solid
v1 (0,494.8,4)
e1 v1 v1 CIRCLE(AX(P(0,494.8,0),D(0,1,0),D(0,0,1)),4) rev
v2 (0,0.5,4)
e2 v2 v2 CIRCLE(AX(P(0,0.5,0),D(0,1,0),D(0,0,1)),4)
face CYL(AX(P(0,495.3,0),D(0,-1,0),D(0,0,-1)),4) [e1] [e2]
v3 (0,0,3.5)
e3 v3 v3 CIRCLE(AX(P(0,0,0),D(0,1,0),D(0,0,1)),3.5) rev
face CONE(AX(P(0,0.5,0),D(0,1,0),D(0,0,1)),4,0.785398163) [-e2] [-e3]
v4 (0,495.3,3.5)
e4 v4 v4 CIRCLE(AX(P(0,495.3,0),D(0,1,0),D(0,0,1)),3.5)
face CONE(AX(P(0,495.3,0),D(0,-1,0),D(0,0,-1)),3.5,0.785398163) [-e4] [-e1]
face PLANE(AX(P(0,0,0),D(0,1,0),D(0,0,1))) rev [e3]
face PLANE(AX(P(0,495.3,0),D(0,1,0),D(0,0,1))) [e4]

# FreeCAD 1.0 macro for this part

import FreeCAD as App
import Part
import Sketcher
Q = App.Units.Quantity


def edges_at(feature, points):
    """Names of the edges that pass closest to the given points."""
    edges = feature.Shape.Edges
    near = lambda p: min(range(len(edges)), key=lambda i: edges[i].distToShape(Part.Vertex(*p))[0])
    return sorted({f"Edge{near(p) + 1}" for p in points})

doc = App.newDocument("Part")
body = doc.addObject("PartDesign::Body", "Body")

# Sketch on XZ plane
sketch1 = body.newObject("Sketcher::SketchObject", "Sketch")
sketch1.AttachmentSupport = (doc.getObject("XZ_Plane"), [""])
sketch1.MapMode = "FlatFace"
sketch1.addGeometry(Part.Circle(App.Vector(0, 0, 0), App.Vector(0, 0, 1), 4), False)
sketch1.addConstraint([
    Sketcher.Constraint("Coincident", 0, 3, -1, 1),
    Sketcher.Constraint("Diameter", 0, Q("8 mm")),
])
pad1 = body.newObject("PartDesign::Pad", "Pad")
pad1.Profile = sketch1
pad1.Length = 495.3
pad1.Reversed = True
doc.recompute()

chamfer = body.newObject("PartDesign::Chamfer", "Chamfer")
chamfer.Base = (pad1, edges_at(pad1, [(-4, 0, 0), (-4, 495.3, 0)]))
chamfer.Size = 0.5

doc.recompute()
